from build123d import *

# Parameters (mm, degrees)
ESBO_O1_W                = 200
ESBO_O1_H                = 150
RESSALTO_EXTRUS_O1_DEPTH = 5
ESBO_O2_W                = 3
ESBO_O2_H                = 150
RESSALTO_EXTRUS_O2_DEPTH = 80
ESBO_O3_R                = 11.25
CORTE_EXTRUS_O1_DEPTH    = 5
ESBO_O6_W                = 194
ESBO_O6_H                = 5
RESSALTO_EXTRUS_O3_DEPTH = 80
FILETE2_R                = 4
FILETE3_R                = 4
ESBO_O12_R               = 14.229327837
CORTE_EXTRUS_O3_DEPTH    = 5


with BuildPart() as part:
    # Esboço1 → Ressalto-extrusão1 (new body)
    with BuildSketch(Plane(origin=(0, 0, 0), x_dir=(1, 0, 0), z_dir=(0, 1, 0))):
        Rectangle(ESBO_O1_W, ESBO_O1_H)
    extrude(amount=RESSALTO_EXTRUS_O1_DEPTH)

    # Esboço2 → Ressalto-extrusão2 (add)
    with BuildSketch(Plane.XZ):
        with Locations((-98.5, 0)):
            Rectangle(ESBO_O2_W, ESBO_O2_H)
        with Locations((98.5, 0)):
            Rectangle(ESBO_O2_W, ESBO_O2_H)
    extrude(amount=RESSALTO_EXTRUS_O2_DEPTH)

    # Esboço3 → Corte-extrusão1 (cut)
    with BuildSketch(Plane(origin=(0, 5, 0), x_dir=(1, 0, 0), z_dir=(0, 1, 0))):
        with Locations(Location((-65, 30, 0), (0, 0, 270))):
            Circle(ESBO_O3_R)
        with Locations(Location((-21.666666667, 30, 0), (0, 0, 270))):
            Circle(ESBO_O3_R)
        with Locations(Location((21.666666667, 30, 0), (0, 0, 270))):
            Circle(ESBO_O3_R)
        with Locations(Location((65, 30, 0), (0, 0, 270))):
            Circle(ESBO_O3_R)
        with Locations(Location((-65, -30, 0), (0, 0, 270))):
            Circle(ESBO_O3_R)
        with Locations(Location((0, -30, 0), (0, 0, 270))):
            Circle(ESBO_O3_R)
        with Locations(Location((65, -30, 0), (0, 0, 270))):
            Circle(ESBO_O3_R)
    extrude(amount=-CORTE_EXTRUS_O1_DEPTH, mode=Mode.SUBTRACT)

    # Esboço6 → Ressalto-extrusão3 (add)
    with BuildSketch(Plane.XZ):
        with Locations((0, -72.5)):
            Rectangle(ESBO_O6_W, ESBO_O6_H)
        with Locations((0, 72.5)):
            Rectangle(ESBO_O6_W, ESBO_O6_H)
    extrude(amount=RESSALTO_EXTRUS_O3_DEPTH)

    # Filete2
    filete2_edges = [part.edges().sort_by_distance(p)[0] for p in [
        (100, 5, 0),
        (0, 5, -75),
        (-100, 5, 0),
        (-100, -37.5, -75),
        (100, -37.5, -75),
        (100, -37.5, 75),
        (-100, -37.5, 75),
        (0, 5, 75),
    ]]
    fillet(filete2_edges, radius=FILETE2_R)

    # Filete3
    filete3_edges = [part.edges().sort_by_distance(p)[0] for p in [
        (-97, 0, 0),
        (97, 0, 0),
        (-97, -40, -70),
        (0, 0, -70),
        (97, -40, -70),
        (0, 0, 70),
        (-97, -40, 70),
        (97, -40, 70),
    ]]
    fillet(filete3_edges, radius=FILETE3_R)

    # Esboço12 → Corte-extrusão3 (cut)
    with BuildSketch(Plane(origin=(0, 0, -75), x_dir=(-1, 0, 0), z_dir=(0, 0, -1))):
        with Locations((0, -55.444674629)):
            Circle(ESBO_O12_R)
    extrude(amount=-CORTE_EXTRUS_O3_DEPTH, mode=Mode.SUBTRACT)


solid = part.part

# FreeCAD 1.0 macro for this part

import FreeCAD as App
import Part
import Sketcher
Q = App.Units.Quantity


def edges_at(feature, points):
    """Names of the edges that pass closest to the given points."""
    edges = feature.Shape.Edges
    near = lambda p: min(range(len(edges)), key=lambda i: edges[i].distToShape(Part.Vertex(*p))[0])
    return sorted({f"Edge{near(p) + 1}" for p in points})

doc = App.newDocument("Part")
params = doc.addObject("Spreadsheet::Sheet", "Params")
for row, (alias, value) in enumerate([
    ("sketch1_width", "200 mm"),
    ("sketch1_height", "150 mm"),
    ("pad1_length", "5 mm"),
    ("sketch2_width", "3 mm"),
    ("sketch2_height", "150 mm"),
    ("pad2_length", "80 mm"),
    ("sketch3_diameter", "22.5 mm"),
    ("pocket1_length", "5 mm"),
    ("sketch4_width", "194 mm"),
    ("sketch4_height", "5 mm"),
    ("pad3_length", "80 mm"),
    ("fillet_radius", "4 mm"),
    ("fillet2_radius", "4 mm"),
    ("pocket2_length", "5 mm"),
], start=1):
    params.set(f"A{row}", alias)
    params.set(f"B{row}", "=" + value)
    params.setAlias(f"B{row}", alias)

body = doc.addObject("PartDesign::Body", "Body")

sketch1 = body.newObject("Sketcher::SketchObject", "Sketch")
sketch1.AttachmentSupport = (doc.getObject("XZ_Plane"), [""])
sketch1.MapMode = "FlatFace"
sketch1.addGeometry(Part.LineSegment(App.Vector(-100, -75, 0), App.Vector(-100, 75, 0)), False)
sketch1.addGeometry(Part.LineSegment(App.Vector(-100, 75, 0), App.Vector(100, 75, 0)), False)
sketch1.addGeometry(Part.LineSegment(App.Vector(100, 75, 0), App.Vector(100, -75, 0)), False)
sketch1.addGeometry(Part.LineSegment(App.Vector(100, -75, 0), App.Vector(-100, -75, 0)), False)
sketch1.addConstraint(Sketcher.Constraint("Coincident", 0, 2, 1, 1))
sketch1.addConstraint(Sketcher.Constraint("Coincident", 1, 2, 2, 1))
sketch1.addConstraint(Sketcher.Constraint("Coincident", 2, 2, 3, 1))
sketch1.addConstraint(Sketcher.Constraint("Coincident", 3, 2, 0, 1))
sketch1.addConstraint(Sketcher.Constraint("Vertical", 0))
sketch1.addConstraint(Sketcher.Constraint("Horizontal", 1))
sketch1.addConstraint(Sketcher.Constraint("Vertical", 2))
sketch1.addConstraint(Sketcher.Constraint("Horizontal", 3))
sketch1.addConstraint(Sketcher.Constraint("Symmetric", 0, 2, 2, 2, -1, 1))
sketch1.addConstraint(Sketcher.Constraint("DistanceX", 1, 1, 1, 2, Q("200 mm")))
sketch1.addConstraint(Sketcher.Constraint("DistanceY", 0, 1, 0, 2, Q("150 mm")))
sketch1.setExpression("Constraints[9]", "Params.sketch1_width")
sketch1.setExpression("Constraints[10]", "Params.sketch1_height")
pad1 = body.newObject("PartDesign::Pad", "Pad")
pad1.Profile = sketch1
pad1.setExpression("Length", "Params.pad1_length")
pad1.Reversed = True

sketch2 = body.newObject("Sketcher::SketchObject", "Sketch001")
sketch2.AttachmentSupport = (doc.getObject("XZ_Plane"), [""])
sketch2.MapMode = "FlatFace"
sketch2.addGeometry(Part.LineSegment(App.Vector(-100, 75, 0), App.Vector(-100, -75, 0)), False)
sketch2.addGeometry(Part.LineSegment(App.Vector(-100, -75, 0), App.Vector(-97, -75, 0)), False)
sketch2.addGeometry(Part.LineSegment(App.Vector(-97, -75, 0), App.Vector(-97, 75, 0)), False)
sketch2.addGeometry(Part.LineSegment(App.Vector(-97, 75, 0), App.Vector(-100, 75, 0)), False)
sketch2.addGeometry(Part.LineSegment(App.Vector(97, 75, 0), App.Vector(97, -75, 0)), False)
sketch2.addGeometry(Part.LineSegment(App.Vector(97, -75, 0), App.Vector(100, -75, 0)), False)
sketch2.addGeometry(Part.LineSegment(App.Vector(100, -75, 0), App.Vector(100, 75, 0)), False)
sketch2.addGeometry(Part.LineSegment(App.Vector(100, 75, 0), App.Vector(97, 75, 0)), False)
sketch2.addConstraint(Sketcher.Constraint("Coincident", 0, 2, 1, 1))
sketch2.addConstraint(Sketcher.Constraint("Coincident", 1, 2, 2, 1))
sketch2.addConstraint(Sketcher.Constraint("Coincident", 2, 2, 3, 1))
sketch2.addConstraint(Sketcher.Constraint("Coincident", 3, 2, 0, 1))
sketch2.addConstraint(Sketcher.Constraint("Coincident", 4, 2, 5, 1))
sketch2.addConstraint(Sketcher.Constraint("Coincident", 5, 2, 6, 1))
sketch2.addConstraint(Sketcher.Constraint("Coincident", 6, 2, 7, 1))
sketch2.addConstraint(Sketcher.Constraint("Coincident", 7, 2, 4, 1))
sketch2.addConstraint(Sketcher.Constraint("Vertical", 0))
sketch2.addConstraint(Sketcher.Constraint("Horizontal", 1))
sketch2.addConstraint(Sketcher.Constraint("Vertical", 2))
sketch2.addConstraint(Sketcher.Constraint("Horizontal", 3))
sketch2.addConstraint(Sketcher.Constraint("Vertical", 4))
sketch2.addConstraint(Sketcher.Constraint("Horizontal", 5))
sketch2.addConstraint(Sketcher.Constraint("Vertical", 6))
sketch2.addConstraint(Sketcher.Constraint("Horizontal", 7))
sketch2.addConstraint(Sketcher.Constraint("Symmetric", 2, 2, 4, 2, -1, 1))
sketch2.addConstraint(Sketcher.Constraint("Symmetric", 0, 2, 6, 2, -1, 1))
sketch2.addConstraint(Sketcher.Constraint("Horizontal", 1, 2, 4, 2))
sketch2.addConstraint(Sketcher.Constraint("DistanceX", 1, 1, 1, 2, Q("3 mm")))
sketch2.addConstraint(Sketcher.Constraint("DistanceY", 0, 2, 0, 1, Q("150 mm")))
sketch2.addConstraint(Sketcher.Constraint("DistanceX", 0, 2, -1, 1, Q("100 mm")))
sketch2.setExpression("Constraints[19]", "Params.sketch2_width")
sketch2.setExpression("Constraints[20]", "Params.sketch2_height")
pad2 = body.newObject("PartDesign::Pad", "Pad001")
pad2.Profile = sketch2
pad2.setExpression("Length", "Params.pad2_length")

sketch3 = body.newObject("Sketcher::SketchObject", "Sketch002")
sketch3.AttachmentSupport = (doc.getObject("XZ_Plane"), [""])
sketch3.MapMode = "FlatFace"
sketch3.AttachmentOffset = App.Placement(App.Vector(0, 0, -5), App.Rotation())
sketch3.addGeometry(Part.Circle(App.Vector(-65, -30, 0), App.Vector(0, 0, 1), 11.25), False)
sketch3.addGeometry(Part.Circle(App.Vector(-21.666667, -30, 0), App.Vector(0, 0, 1), 11.25), False)
sketch3.addGeometry(Part.Circle(App.Vector(21.666667, -30, 0), App.Vector(0, 0, 1), 11.25), False)
sketch3.addGeometry(Part.Circle(App.Vector(65, -30, 0), App.Vector(0, 0, 1), 11.25), False)
sketch3.addGeometry(Part.Circle(App.Vector(-65, 30, 0), App.Vector(0, 0, 1), 11.25), False)
sketch3.addGeometry(Part.Circle(App.Vector(0, 30, 0), App.Vector(0, 0, 1), 11.25), False)
sketch3.addGeometry(Part.Circle(App.Vector(65, 30, 0), App.Vector(0, 0, 1), 11.25), False)
sketch3.addConstraint(Sketcher.Constraint("Equal", 0, 1))
sketch3.addConstraint(Sketcher.Constraint("Equal", 1, 2))
sketch3.addConstraint(Sketcher.Constraint("Equal", 2, 3))
sketch3.addConstraint(Sketcher.Constraint("Equal", 3, 4))
sketch3.addConstraint(Sketcher.Constraint("Equal", 4, 5))
sketch3.addConstraint(Sketcher.Constraint("Equal", 5, 6))
sketch3.addConstraint(Sketcher.Constraint("Symmetric", 3, 3, 4, 3, -1, 1))
sketch3.addConstraint(Sketcher.Constraint("Symmetric", 0, 3, 6, 3, -1, 1))
sketch3.addConstraint(Sketcher.Constraint("Symmetric", 1, 3, 2, 3, -2))
sketch3.addConstraint(Sketcher.Constraint("Symmetric", 0, 3, 3, 3, -2))
sketch3.addConstraint(Sketcher.Constraint("PointOnObject", 5, 3, -2))
sketch3.addConstraint(Sketcher.Constraint("Horizontal", 0, 3, 1, 3))
sketch3.addConstraint(Sketcher.Constraint("Horizontal", 4, 3, 5, 3))
sketch3.addConstraint(Sketcher.Constraint("Diameter", 0, Q("22.5 mm")))
sketch3.addConstraint(Sketcher.Constraint("DistanceX", 0, 3, -1, 1, Q("65 mm")))
sketch3.addConstraint(Sketcher.Constraint("DistanceY", 0, 3, -1, 1, Q("30 mm")))
sketch3.addConstraint(Sketcher.Constraint("DistanceX", 1, 3, -1, 1, Q("21.666667 mm")))
sketch3.setExpression("Constraints[13]", "Params.sketch3_diameter")
pocket1 = body.newObject("PartDesign::Pocket", "Pocket")
pocket1.Profile = sketch3
pocket1.setExpression("Length", "Params.pocket1_length")
pocket1.Reversed = True

sketch4 = body.newObject("Sketcher::SketchObject", "Sketch003")
sketch4.AttachmentSupport = (doc.getObject("XZ_Plane"), [""])
sketch4.MapMode = "FlatFace"
sketch4.addGeometry(Part.LineSegment(App.Vector(-97, -70, 0), App.Vector(-97, -75, 0)), False)
sketch4.addGeometry(Part.LineSegment(App.Vector(-97, -75, 0), App.Vector(97, -75, 0)), False)
sketch4.addGeometry(Part.LineSegment(App.Vector(97, -75, 0), App.Vector(97, -70, 0)), False)
sketch4.addGeometry(Part.LineSegment(App.Vector(97, -70, 0), App.Vector(-97, -70, 0)), False)
sketch4.addGeometry(Part.LineSegment(App.Vector(-97, 75, 0), App.Vector(-97, 70, 0)), False)
sketch4.addGeometry(Part.LineSegment(App.Vector(-97, 70, 0), App.Vector(97, 70, 0)), False)
sketch4.addGeometry(Part.LineSegment(App.Vector(97, 70, 0), App.Vector(97, 75, 0)), False)
sketch4.addGeometry(Part.LineSegment(App.Vector(97, 75, 0), App.Vector(-97, 75, 0)), False)
sketch4.addConstraint(Sketcher.Constraint("Coincident", 0, 2, 1, 1))
sketch4.addConstraint(Sketcher.Constraint("Coincident", 1, 2, 2, 1))
sketch4.addConstraint(Sketcher.Constraint("Coincident", 2, 2, 3, 1))
sketch4.addConstraint(Sketcher.Constraint("Coincident", 3, 2, 0, 1))
sketch4.addConstraint(Sketcher.Constraint("Coincident", 4, 2, 5, 1))
sketch4.addConstraint(Sketcher.Constraint("Coincident", 5, 2, 6, 1))
sketch4.addConstraint(Sketcher.Constraint("Coincident", 6, 2, 7, 1))
sketch4.addConstraint(Sketcher.Constraint("Coincident", 7, 2, 4, 1))
sketch4.addConstraint(Sketcher.Constraint("Vertical", 0))
sketch4.addConstraint(Sketcher.Constraint("Horizontal", 1))
sketch4.addConstraint(Sketcher.Constraint("Vertical", 2))
sketch4.addConstraint(Sketcher.Constraint("Horizontal", 3))
sketch4.addConstraint(Sketcher.Constraint("Vertical", 4))
sketch4.addConstraint(Sketcher.Constraint("Horizontal", 5))
sketch4.addConstraint(Sketcher.Constraint("Vertical", 6))
sketch4.addConstraint(Sketcher.Constraint("Horizontal", 7))
sketch4.addConstraint(Sketcher.Constraint("Symmetric", 2, 2, 4, 2, -1, 1))
sketch4.addConstraint(Sketcher.Constraint("Symmetric", 0, 2, 6, 2, -1, 1))
sketch4.addConstraint(Sketcher.Constraint("Vertical", 3, 2, 4, 2))
sketch4.addConstraint(Sketcher.Constraint("DistanceX", 1, 1, 1, 2, Q("194 mm")))
sketch4.addConstraint(Sketcher.Constraint("DistanceY", 0, 2, 0, 1, Q("5 mm")))
sketch4.addConstraint(Sketcher.Constraint("DistanceY", 0, 2, -1, 1, Q("75 mm")))
sketch4.setExpression("Constraints[19]", "Params.sketch4_width")
sketch4.setExpression("Constraints[20]", "Params.sketch4_height")
pad3 = body.newObject("PartDesign::Pad", "Pad002")
pad3.Profile = sketch4
pad3.setExpression("Length", "Params.pad3_length")
doc.recompute()

fillet = body.newObject("PartDesign::Fillet", "Fillet")
fillet.Base = (pad3, edges_at(pad3, [
    (100, 5, 0),
    (0, 5, -75),
    (-100, 5, 0),
    (-100, -37.5, -75),
    (100, -37.5, -75),
    (100, -37.5, 75),
    (-100, -37.5, 75),
    (0, 5, 75),
]))
fillet.setExpression("Radius", "Params.fillet_radius")
doc.recompute()

fillet2 = body.newObject("PartDesign::Fillet", "Fillet001")
fillet2.Base = (fillet, edges_at(fillet, [
    (-97, 0, 0),
    (97, 0, 0),
    (-97, -40, -70),
    (0, 0, -70),
    (97, -40, -70),
    (0, 0, 70),
    (-97, -40, 70),
    (97, -40, 70),
]))
fillet2.setExpression("Radius", "Params.fillet2_radius")

sketch5 = body.newObject("Sketcher::SketchObject", "Sketch004")
sketch5.AttachmentSupport = (doc.getObject("XY_Plane"), [""])
sketch5.MapMode = "FlatFace"
sketch5.AttachmentOffset = App.Placement(App.Vector(0, 0, -75), App.Rotation())
sketch5.addGeometry(Part.Circle(App.Vector(0, -55.444675, 0), App.Vector(0, 0, 1), 14.229328), False)
sketch5.addConstraint(Sketcher.Constraint("PointOnObject", 0, 3, -2))
sketch5.addConstraint(Sketcher.Constraint("Diameter", 0, Q("28.458656 mm")))
sketch5.addConstraint(Sketcher.Constraint("DistanceY", 0, 3, -1, 1, Q("55.444675 mm")))
pocket2 = body.newObject("PartDesign::Pocket", "Pocket001")
pocket2.Profile = sketch5
pocket2.setExpression("Length", "Params.pocket2_length")
pocket2.Reversed = True

doc.recompute()
